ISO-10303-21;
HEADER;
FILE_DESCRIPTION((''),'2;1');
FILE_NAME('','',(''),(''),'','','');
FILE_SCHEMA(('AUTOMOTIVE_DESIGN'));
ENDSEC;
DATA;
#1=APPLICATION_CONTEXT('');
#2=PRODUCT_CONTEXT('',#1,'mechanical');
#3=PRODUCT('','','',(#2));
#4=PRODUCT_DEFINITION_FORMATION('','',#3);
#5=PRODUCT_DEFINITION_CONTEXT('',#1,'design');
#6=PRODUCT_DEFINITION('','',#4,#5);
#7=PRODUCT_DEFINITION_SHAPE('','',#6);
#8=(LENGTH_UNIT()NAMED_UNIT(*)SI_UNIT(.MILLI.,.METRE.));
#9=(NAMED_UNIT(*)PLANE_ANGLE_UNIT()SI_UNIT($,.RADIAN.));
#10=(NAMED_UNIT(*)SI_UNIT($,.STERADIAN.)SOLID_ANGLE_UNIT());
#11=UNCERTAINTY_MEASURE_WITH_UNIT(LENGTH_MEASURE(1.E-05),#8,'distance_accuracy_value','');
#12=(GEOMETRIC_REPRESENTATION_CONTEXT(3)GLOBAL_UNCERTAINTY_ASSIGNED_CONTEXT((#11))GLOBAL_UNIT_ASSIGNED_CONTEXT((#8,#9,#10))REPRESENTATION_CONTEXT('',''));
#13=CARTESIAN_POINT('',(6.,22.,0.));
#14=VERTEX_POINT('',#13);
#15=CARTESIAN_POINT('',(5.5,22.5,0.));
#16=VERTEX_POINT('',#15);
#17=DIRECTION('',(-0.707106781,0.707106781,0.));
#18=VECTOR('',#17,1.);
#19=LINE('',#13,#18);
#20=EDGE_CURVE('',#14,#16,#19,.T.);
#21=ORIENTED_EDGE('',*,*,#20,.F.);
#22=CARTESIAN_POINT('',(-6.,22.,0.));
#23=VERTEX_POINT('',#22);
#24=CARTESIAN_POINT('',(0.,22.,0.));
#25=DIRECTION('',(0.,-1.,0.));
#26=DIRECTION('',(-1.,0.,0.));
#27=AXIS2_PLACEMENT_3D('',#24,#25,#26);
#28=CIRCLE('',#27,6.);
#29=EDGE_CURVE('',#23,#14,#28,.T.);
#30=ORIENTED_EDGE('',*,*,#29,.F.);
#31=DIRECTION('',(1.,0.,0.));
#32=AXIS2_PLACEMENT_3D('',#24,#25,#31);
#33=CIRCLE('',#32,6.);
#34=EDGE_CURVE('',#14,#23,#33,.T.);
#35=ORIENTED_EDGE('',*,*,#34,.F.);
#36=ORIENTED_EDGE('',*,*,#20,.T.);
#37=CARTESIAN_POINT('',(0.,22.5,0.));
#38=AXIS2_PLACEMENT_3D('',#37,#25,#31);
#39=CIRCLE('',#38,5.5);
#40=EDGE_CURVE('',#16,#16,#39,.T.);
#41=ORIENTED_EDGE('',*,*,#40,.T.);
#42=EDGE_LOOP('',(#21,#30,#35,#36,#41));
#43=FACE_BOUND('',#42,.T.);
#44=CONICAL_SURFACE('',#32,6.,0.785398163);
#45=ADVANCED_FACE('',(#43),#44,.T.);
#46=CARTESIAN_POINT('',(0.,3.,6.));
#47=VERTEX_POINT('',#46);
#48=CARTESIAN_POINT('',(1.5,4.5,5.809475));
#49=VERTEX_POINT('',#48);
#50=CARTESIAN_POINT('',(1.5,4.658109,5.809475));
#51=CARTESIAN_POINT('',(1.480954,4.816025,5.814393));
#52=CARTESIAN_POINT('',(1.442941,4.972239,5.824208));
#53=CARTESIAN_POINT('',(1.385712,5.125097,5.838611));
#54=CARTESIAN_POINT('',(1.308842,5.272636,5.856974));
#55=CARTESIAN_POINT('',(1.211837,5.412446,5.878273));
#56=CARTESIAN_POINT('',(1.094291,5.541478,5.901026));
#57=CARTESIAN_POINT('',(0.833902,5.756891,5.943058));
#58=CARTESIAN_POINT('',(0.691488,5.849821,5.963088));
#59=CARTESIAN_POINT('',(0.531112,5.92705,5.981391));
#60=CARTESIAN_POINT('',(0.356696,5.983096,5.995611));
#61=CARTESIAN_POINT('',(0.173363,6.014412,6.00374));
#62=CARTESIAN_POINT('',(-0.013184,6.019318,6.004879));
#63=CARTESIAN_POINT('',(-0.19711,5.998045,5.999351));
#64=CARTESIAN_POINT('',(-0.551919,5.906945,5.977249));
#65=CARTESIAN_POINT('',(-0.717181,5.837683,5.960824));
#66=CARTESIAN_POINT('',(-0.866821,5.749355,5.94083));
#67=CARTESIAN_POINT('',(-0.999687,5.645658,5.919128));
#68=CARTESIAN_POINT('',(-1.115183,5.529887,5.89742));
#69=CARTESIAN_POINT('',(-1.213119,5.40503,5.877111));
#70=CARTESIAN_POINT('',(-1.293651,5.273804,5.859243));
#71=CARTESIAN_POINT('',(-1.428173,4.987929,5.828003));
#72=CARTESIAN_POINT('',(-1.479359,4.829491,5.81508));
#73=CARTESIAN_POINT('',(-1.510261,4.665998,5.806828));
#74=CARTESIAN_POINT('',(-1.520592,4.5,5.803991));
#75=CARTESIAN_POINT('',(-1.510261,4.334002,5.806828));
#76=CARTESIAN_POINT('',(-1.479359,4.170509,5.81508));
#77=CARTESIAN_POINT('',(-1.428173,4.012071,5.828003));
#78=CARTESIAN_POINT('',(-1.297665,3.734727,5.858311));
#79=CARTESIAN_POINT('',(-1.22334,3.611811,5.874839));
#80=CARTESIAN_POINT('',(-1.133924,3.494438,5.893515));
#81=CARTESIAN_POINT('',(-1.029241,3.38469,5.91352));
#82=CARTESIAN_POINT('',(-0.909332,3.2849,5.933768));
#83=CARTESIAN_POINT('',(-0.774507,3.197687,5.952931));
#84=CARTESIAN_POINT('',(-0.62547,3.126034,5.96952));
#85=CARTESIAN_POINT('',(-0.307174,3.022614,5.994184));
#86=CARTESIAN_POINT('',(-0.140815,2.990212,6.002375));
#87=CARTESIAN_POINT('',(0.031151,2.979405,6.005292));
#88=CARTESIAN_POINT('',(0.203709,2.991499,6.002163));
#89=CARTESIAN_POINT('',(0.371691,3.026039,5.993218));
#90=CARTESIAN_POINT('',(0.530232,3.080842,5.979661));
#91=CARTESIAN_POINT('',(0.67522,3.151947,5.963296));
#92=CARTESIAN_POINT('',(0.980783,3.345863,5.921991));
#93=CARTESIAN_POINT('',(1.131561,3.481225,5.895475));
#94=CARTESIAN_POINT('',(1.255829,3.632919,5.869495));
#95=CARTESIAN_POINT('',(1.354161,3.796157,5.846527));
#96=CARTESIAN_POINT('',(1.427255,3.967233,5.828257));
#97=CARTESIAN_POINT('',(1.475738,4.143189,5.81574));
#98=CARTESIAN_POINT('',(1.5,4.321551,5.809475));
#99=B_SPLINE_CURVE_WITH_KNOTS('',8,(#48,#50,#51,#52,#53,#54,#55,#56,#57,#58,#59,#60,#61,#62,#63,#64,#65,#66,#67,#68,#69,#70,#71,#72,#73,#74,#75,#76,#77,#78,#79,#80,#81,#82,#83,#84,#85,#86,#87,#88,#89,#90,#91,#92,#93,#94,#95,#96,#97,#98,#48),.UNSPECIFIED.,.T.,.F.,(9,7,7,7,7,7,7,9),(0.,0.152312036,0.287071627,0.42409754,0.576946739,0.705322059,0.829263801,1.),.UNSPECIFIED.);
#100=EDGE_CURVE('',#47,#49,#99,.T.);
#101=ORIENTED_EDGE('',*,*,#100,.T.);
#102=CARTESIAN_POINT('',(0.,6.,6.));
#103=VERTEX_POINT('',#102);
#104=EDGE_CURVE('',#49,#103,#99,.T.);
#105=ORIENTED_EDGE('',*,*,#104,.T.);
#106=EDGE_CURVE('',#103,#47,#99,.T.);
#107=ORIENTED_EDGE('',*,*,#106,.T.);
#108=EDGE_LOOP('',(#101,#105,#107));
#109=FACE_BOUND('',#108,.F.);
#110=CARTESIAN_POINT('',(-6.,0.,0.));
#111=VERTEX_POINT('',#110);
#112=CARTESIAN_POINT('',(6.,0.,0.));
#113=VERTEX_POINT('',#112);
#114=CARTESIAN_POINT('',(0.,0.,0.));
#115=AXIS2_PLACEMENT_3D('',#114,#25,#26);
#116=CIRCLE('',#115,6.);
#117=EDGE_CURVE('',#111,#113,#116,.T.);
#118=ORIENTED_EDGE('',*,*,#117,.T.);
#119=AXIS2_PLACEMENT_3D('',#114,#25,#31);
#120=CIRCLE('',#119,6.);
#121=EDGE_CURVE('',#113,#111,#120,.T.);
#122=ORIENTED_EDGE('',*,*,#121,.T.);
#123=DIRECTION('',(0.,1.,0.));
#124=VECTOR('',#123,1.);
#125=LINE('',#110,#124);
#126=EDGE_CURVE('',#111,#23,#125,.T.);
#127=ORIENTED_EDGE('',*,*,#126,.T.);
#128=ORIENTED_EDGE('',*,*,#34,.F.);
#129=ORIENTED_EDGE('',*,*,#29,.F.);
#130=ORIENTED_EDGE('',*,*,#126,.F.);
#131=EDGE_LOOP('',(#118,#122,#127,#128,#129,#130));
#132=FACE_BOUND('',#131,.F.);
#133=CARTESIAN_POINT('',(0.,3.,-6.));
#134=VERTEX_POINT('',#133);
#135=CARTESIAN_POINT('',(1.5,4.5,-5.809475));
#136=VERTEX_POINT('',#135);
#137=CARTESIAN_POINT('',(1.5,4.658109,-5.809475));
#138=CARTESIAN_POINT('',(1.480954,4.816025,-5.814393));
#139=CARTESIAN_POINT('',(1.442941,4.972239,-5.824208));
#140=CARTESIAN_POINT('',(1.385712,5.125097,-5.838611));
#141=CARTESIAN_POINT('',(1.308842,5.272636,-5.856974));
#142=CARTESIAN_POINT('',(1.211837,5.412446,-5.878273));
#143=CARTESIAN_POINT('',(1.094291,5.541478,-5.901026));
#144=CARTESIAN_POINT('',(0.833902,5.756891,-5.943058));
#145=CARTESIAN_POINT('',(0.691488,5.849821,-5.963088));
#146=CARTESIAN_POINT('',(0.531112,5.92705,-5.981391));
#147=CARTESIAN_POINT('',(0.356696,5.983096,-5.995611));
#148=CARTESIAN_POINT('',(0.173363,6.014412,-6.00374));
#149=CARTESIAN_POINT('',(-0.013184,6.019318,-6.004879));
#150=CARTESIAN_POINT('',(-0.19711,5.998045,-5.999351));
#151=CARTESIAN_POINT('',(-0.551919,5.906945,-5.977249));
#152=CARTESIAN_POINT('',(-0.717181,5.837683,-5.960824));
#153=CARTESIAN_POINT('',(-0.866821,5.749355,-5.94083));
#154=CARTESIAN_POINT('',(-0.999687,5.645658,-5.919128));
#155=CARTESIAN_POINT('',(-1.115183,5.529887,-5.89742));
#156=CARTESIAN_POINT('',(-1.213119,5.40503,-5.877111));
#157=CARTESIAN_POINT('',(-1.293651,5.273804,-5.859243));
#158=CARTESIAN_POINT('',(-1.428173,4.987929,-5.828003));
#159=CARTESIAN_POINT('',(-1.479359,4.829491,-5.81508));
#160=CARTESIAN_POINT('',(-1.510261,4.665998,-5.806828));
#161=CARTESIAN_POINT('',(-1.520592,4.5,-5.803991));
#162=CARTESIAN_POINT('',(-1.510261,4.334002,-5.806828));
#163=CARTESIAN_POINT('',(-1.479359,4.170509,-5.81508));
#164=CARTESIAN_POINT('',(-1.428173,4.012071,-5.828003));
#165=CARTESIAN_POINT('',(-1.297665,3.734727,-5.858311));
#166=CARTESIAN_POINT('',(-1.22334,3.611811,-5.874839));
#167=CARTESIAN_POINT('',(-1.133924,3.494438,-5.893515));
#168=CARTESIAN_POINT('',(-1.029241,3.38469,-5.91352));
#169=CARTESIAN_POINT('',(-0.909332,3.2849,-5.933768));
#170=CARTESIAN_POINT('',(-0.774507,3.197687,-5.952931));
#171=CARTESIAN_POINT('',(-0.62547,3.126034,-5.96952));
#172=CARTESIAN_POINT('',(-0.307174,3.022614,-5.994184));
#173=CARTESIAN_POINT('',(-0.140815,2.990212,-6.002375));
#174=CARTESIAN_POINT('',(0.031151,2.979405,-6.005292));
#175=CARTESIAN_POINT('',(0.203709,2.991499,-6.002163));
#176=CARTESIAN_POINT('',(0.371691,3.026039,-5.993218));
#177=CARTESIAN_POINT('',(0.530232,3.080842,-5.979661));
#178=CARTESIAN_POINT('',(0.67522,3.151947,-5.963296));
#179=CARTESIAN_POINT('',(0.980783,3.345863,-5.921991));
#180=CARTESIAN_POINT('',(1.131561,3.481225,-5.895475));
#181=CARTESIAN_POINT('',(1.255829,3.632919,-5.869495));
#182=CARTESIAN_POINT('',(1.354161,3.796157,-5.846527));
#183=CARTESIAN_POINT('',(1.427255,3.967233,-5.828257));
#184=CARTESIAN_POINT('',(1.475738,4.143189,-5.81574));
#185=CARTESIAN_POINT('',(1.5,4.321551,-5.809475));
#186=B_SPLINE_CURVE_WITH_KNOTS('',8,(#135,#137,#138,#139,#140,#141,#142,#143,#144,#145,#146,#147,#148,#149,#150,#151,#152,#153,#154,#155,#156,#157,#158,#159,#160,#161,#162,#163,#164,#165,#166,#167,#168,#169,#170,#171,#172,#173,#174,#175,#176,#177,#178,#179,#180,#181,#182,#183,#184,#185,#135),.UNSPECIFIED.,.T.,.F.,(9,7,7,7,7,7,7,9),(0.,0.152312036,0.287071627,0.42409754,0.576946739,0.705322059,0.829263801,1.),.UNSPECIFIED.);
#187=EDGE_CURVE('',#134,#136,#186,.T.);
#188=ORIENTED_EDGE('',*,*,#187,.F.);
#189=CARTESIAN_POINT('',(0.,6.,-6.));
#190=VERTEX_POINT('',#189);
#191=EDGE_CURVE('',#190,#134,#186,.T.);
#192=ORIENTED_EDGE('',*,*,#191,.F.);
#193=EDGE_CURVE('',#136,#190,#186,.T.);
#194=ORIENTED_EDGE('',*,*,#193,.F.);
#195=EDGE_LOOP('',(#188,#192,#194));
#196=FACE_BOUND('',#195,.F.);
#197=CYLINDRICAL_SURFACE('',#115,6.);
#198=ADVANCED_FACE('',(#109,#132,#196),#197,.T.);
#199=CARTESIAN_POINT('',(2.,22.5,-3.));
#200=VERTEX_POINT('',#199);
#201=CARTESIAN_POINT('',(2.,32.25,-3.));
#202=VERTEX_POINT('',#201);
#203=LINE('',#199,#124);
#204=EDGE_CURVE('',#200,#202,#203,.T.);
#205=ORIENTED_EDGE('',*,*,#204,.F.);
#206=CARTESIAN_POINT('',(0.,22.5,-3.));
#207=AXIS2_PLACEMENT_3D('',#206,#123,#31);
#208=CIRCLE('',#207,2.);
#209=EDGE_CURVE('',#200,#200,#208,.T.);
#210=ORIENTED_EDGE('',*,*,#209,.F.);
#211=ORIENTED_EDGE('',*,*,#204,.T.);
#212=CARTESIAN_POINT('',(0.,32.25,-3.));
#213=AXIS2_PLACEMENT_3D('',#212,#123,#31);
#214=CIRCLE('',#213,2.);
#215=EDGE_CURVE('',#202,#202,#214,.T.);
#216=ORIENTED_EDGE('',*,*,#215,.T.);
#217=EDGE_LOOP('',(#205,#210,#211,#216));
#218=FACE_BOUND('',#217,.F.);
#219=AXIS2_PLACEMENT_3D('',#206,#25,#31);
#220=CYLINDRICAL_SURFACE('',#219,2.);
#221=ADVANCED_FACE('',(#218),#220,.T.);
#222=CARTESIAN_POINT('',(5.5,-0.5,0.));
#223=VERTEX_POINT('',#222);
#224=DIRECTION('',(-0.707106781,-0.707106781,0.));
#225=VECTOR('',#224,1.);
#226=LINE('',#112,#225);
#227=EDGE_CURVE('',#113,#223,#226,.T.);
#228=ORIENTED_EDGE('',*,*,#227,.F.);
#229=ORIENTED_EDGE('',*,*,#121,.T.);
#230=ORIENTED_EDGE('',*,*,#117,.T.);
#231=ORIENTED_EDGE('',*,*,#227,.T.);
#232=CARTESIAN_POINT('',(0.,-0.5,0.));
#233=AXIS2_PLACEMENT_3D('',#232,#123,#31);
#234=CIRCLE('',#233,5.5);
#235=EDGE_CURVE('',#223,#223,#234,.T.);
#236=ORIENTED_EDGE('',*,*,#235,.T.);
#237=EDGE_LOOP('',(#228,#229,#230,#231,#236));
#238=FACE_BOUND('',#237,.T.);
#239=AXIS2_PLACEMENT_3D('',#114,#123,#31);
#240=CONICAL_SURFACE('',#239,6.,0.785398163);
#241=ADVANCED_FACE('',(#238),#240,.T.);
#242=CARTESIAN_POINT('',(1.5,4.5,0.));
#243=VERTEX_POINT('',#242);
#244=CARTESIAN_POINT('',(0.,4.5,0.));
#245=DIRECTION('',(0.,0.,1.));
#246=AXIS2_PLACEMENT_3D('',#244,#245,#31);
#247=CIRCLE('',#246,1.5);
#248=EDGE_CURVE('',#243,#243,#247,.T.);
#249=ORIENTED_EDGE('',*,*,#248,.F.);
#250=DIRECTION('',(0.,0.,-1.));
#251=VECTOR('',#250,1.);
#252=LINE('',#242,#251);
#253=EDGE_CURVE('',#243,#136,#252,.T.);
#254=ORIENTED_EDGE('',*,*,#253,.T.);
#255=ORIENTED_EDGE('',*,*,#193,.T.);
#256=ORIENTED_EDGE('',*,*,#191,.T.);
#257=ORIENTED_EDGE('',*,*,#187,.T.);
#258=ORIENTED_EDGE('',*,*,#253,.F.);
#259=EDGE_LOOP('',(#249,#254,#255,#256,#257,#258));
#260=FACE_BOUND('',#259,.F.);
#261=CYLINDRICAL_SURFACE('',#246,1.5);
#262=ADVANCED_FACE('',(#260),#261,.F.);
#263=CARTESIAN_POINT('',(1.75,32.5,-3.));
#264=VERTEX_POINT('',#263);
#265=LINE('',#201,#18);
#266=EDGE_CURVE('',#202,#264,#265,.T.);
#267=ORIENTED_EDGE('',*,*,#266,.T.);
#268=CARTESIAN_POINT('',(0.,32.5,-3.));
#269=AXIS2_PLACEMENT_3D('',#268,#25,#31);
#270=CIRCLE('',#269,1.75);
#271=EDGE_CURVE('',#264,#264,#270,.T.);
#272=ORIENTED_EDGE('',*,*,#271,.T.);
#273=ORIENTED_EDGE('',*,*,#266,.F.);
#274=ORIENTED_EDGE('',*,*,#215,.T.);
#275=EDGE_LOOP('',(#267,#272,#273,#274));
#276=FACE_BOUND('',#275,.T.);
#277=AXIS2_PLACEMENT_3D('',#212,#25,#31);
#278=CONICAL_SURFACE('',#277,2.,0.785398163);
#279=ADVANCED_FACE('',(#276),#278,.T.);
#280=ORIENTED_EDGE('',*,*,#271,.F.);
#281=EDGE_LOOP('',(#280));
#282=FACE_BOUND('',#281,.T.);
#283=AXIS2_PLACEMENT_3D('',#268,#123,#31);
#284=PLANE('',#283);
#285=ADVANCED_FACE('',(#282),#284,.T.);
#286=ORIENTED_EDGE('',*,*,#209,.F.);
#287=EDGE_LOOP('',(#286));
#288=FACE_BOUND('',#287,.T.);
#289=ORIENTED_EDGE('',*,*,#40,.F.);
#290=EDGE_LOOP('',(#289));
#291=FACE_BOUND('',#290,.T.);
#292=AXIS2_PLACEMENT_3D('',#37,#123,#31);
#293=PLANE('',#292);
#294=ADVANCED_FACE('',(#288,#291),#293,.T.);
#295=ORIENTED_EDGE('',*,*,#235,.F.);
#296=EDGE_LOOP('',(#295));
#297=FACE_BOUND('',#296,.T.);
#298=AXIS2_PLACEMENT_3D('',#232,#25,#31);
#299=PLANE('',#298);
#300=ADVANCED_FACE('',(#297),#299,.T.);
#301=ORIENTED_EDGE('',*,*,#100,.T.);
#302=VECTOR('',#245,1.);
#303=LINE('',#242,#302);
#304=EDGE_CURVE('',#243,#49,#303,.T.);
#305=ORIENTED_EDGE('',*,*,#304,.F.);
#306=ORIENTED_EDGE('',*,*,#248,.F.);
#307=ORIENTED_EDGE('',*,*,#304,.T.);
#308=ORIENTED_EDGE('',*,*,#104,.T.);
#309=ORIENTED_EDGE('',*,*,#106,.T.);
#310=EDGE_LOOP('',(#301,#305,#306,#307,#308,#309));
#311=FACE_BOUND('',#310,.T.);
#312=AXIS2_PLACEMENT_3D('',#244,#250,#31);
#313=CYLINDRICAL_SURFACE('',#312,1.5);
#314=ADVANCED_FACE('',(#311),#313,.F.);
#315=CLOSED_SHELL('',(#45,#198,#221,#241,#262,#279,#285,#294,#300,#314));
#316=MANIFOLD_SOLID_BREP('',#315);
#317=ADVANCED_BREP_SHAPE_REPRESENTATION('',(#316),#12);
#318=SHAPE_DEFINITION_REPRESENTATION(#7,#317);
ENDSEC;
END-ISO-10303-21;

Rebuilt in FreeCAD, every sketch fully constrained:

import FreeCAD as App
import Part
import Sketcher

V = App.Vector
Q = App.Units.Quantity

doc = App.newDocument("Part")
params = doc.addObject("Spreadsheet::Sheet", "Params")
for row, (alias, value) in enumerate([
    ("sketch1_diameter", "12 mm"),
    ("pad1_length", "22 mm"),
    ("sketch2_diameter", "12 mm"),
    ("pad2_length", "0.5 mm"),
    ("pad2_taper", "-45 deg"),
    ("sketch3_diameter", "12 mm"),
    ("pad3_length", "0.5 mm"),
    ("pad3_taper", "-45 deg"),
    ("sketch4_diameter", "3 mm"),
    ("pocket1_length", "12 mm"),
    ("sketch5_diameter", "4 mm"),
    ("pad4_length", "9.75 mm"),
    ("sketch6_diameter", "4 mm"),
    ("pad5_length", "0.25 mm"),
    ("pad5_taper", "-45 deg"),
], start=1):
    params.set(f"A{row}", alias)
    params.set(f"B{row}", "=" + value)
    params.setAlias(f"B{row}", alias)

body = doc.addObject("PartDesign::Body", "Body")

sketch1 = doc.addObject("Sketcher::SketchObject", "Sketch")
body.addObject(sketch1)
sketch1.AttachmentSupport = (doc.XZ_Plane, [""])
sketch1.MapMode = "FlatFace"
sketch1.addGeometry(Part.Circle(V(0, 0, 0), V(0, 0, 1), 6), False)
sketch1.addConstraint(Sketcher.Constraint("Coincident", 0, 3, -1, 1))
sketch1.addConstraint(Sketcher.Constraint("Diameter", 0, Q("12 mm")))
sketch1.setExpression("Constraints[1]", "Params.sketch1_diameter")
pad1 = doc.addObject("PartDesign::Pad", "Pad")
body.addObject(pad1)
pad1.Profile = sketch1
pad1.setExpression("Length", "Params.pad1_length")
pad1.Reversed = True

sketch2 = doc.addObject("Sketcher::SketchObject", "Sketch001")
body.addObject(sketch2)
sketch2.AttachmentSupport = (doc.XZ_Plane, [""])
sketch2.MapMode = "FlatFace"
sketch2.AttachmentOffset = App.Placement(V(0, 0, -22), App.Rotation())
sketch2.addGeometry(Part.Circle(V(0, 0, 0), V(0, 0, 1), 6), False)
sketch2.addConstraint(Sketcher.Constraint("Coincident", 0, 3, -1, 1))
sketch2.addConstraint(Sketcher.Constraint("Diameter", 0, Q("12 mm")))
sketch2.setExpression("Constraints[1]", "Params.sketch2_diameter")
pad2 = doc.addObject("PartDesign::Pad", "Pad001")
body.addObject(pad2)
pad2.Profile = sketch2
pad2.setExpression("Length", "Params.pad2_length")
pad2.Reversed = True
pad2.setExpression("TaperAngle", "Params.pad2_taper")

sketch3 = doc.addObject("Sketcher::SketchObject", "Sketch002")
body.addObject(sketch3)
sketch3.AttachmentSupport = (doc.XZ_Plane, [""])
sketch3.MapMode = "FlatFace"
sketch3.addGeometry(Part.Circle(V(0, 0, 0), V(0, 0, 1), 6), False)
sketch3.addConstraint(Sketcher.Constraint("Coincident", 0, 3, -1, 1))
sketch3.addConstraint(Sketcher.Constraint("Diameter", 0, Q("12 mm")))
sketch3.setExpression("Constraints[1]", "Params.sketch3_diameter")
pad3 = doc.addObject("PartDesign::Pad", "Pad002")
body.addObject(pad3)
pad3.Profile = sketch3
pad3.setExpression("Length", "Params.pad3_length")
pad3.setExpression("TaperAngle", "Params.pad3_taper")

sketch4 = doc.addObject("Sketcher::SketchObject", "Sketch003")
body.addObject(sketch4)
sketch4.AttachmentSupport = (doc.XY_Plane, [""])
sketch4.MapMode = "FlatFace"
sketch4.addGeometry(Part.Circle(V(0, 4.5, 0), V(0, 0, 1), 1.5), False)
sketch4.addConstraint(Sketcher.Constraint("PointOnObject", 0, 3, -2))
sketch4.addConstraint(Sketcher.Constraint("Diameter", 0, Q("3 mm")))
sketch4.addConstraint(Sketcher.Constraint("DistanceY", -1, 1, 0, 3, Q("4.5 mm")))
sketch4.setExpression("Constraints[1]", "Params.sketch4_diameter")
pocket1 = doc.addObject("PartDesign::Pocket", "Pocket")
body.addObject(pocket1)
pocket1.Profile = sketch4
pocket1.setExpression("Length", "Params.pocket1_length")
pocket1.Midplane = True

sketch5 = doc.addObject("Sketcher::SketchObject", "Sketch004")
body.addObject(sketch5)
sketch5.AttachmentSupport = (doc.XZ_Plane, [""])
sketch5.MapMode = "FlatFace"
sketch5.AttachmentOffset = App.Placement(V(0, 0, -22.5), App.Rotation())
sketch5.addGeometry(Part.Circle(V(0, -3, 0), V(0, 0, 1), 2), False)
sketch5.addConstraint(Sketcher.Constraint("PointOnObject", 0, 3, -2))
sketch5.addConstraint(Sketcher.Constraint("Diameter", 0, Q("4 mm")))
sketch5.addConstraint(Sketcher.Constraint("DistanceY", 0, 3, -1, 1, Q("3 mm")))
sketch5.setExpression("Constraints[1]", "Params.sketch5_diameter")
pad4 = doc.addObject("PartDesign::Pad", "Pad003")
body.addObject(pad4)
pad4.Profile = sketch5
pad4.setExpression("Length", "Params.pad4_length")
pad4.Reversed = True

sketch6 = doc.addObject("Sketcher::SketchObject", "Sketch005")
body.addObject(sketch6)
sketch6.AttachmentSupport = (doc.XZ_Plane, [""])
sketch6.MapMode = "FlatFace"
sketch6.AttachmentOffset = App.Placement(V(0, 0, -32.25), App.Rotation())
sketch6.addGeometry(Part.Circle(V(0, -3, 0), V(0, 0, 1), 2), False)
sketch6.addConstraint(Sketcher.Constraint("PointOnObject", 0, 3, -2))
sketch6.addConstraint(Sketcher.Constraint("Diameter", 0, Q("4 mm")))
sketch6.addConstraint(Sketcher.Constraint("DistanceY", 0, 3, -1, 1, Q("3 mm")))
sketch6.setExpression("Constraints[1]", "Params.sketch6_diameter")
pad5 = doc.addObject("PartDesign::Pad", "Pad004")
body.addObject(pad5)
pad5.Profile = sketch6
pad5.setExpression("Length", "Params.pad5_length")
pad5.Reversed = True
pad5.setExpression("TaperAngle", "Params.pad5_taper")

doc.recompute()
